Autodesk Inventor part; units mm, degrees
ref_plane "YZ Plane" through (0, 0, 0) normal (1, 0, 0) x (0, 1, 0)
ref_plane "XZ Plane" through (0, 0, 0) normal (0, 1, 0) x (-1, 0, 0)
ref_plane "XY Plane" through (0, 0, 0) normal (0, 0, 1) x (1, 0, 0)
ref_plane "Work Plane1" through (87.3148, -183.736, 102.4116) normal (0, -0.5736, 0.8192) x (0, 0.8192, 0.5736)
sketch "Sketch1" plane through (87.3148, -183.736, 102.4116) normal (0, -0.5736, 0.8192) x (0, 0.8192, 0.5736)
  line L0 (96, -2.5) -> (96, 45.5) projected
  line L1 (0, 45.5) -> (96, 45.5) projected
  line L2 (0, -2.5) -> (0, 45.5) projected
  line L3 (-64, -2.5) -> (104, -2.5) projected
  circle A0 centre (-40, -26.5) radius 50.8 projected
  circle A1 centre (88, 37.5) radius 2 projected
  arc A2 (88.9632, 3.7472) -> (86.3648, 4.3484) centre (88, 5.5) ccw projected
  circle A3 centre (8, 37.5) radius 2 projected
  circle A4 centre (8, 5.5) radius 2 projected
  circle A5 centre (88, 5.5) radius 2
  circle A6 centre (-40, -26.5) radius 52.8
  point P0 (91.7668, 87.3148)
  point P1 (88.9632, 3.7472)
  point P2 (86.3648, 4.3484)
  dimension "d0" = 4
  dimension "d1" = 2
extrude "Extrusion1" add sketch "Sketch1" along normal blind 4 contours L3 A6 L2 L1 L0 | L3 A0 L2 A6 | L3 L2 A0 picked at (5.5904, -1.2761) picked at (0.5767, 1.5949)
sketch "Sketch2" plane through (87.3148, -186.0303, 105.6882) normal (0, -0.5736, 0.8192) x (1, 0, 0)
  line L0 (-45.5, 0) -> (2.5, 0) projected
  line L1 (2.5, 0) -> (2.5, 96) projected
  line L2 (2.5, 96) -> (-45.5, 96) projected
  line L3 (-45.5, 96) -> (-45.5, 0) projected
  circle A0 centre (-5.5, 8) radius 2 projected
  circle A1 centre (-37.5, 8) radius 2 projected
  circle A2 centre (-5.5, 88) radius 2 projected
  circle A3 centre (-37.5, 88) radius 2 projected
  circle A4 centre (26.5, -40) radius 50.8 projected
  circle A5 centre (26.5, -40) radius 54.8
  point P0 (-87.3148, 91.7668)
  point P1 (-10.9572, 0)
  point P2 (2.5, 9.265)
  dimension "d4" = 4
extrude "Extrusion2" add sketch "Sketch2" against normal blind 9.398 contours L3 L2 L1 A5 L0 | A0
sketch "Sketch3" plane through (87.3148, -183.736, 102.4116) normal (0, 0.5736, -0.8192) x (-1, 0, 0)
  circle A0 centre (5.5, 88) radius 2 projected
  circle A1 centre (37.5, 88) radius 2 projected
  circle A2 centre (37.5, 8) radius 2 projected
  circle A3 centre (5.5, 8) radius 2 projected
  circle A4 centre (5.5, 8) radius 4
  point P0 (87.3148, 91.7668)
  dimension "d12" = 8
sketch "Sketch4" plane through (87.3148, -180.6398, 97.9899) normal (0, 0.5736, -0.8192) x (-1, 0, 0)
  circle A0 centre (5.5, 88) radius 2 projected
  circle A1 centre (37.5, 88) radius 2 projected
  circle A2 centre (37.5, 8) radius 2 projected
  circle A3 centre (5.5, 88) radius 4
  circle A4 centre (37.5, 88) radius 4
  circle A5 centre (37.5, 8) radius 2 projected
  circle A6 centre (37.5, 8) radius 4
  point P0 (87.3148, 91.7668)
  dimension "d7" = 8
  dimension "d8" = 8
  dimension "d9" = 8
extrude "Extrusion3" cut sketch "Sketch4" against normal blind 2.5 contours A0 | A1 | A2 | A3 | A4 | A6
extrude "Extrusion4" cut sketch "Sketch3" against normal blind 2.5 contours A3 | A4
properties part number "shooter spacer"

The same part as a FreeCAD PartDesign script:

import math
import FreeCAD as App
import Part
import Sketcher

doc = App.newDocument("Part")
body = doc.addObject("PartDesign::Body", "Body")

sketch1 = body.newObject("Sketcher::SketchObject", "Sketch")
sketch1.Placement = App.Placement(App.Vector(87.3148, -183.736, 102.4116), App.Rotation(App.Vector(0, 0.819152044, 0.573576436), App.Vector(-0.999999999, 0, 0), App.Vector(0, -0.573576436, 0.819152044), "ZXY"))
sketch1.addGeometry([
    Part.LineSegment(App.Vector(96, -2.5, 0), App.Vector(96, 45.5, 0)),
    Part.LineSegment(App.Vector(96, 45.5, 0), App.Vector(0, 45.5, 0)),
    Part.LineSegment(App.Vector(0, 45.5, 0), App.Vector(0, -2.5, 0)),
    Part.LineSegment(App.Vector(0, -2.5, 0), App.Vector(96, -2.5, 0)),
    Part.Circle(App.Vector(8, 5.5, 0), App.Vector(0, 0, 1), 2),
    Part.ArcOfCircle(Part.Circle(App.Vector(88, 5.5, 0), App.Vector(0, 0, 1), 2), math.radians(-145), math.radians(-61)),
    Part.ArcOfCircle(Part.Circle(App.Vector(88, 5.5, 0), App.Vector(0, 0, 1), 2), math.radians(-61), math.radians(215)),
    Part.Circle(App.Vector(8, 37.5, 0), App.Vector(0, 0, 1), 2),
    Part.Circle(App.Vector(88, 37.5, 0), App.Vector(0, 0, 1), 2),
], False)
sketch1.addConstraint([
    Sketcher.Constraint("Coincident", 0, 2, 1, 1),
    Sketcher.Constraint("Coincident", 1, 2, 2, 1),
    Sketcher.Constraint("Coincident", 2, 2, 3, 1),
    Sketcher.Constraint("Coincident", 3, 2, 0, 1),
    Sketcher.Constraint("Tangent", 5, 1, 6, 2),
    Sketcher.Constraint("Coincident", 6, 1, 5, 2),
    Sketcher.Constraint("Vertical", 0),
    Sketcher.Constraint("Horizontal", 1),
    Sketcher.Constraint("Vertical", 2),
    Sketcher.Constraint("Horizontal", 3),
    Sketcher.Constraint("Equal", 4, 5),
    Sketcher.Constraint("Equal", 6, 7),
    Sketcher.Constraint("Equal", 7, 8),
    Sketcher.Constraint("PointOnObject", 1, 2, -2),
    Sketcher.Constraint("Horizontal", 4, 3, 5, 3),
    Sketcher.Constraint("Horizontal", 7, 3, 8, 3),
    Sketcher.Constraint("Vertical", 4, 3, 7, 3),
    Sketcher.Constraint("Vertical", 6, 3, 8, 3),
    Sketcher.Constraint("Diameter", 4, 4.0),
    Sketcher.Constraint("DistanceX", 1, 2, 1, 1, 96.0),
    Sketcher.Constraint("DistanceY", 0, 1, 0, 2, 48.0),
    Sketcher.Constraint("DistanceX", -1, 1, 4, 3, 8.0),
    Sketcher.Constraint("DistanceX", -1, 1, 5, 3, 88.0),
    Sketcher.Constraint("DistanceY", 4, 3, 7, 3, 32.0),
    Sketcher.Constraint("DistanceY", 8, 3, 0, 2, 8.0),
    Sketcher.Constraint("DistanceY", -1, 1, 4, 3, 5.5),
    Sketcher.Constraint("DistanceX", -1, 1, 5, 1, 86.3648),
    Sketcher.Constraint("DistanceX", -1, 1, 6, 1, 88.9632),
])
pad1 = body.newObject("PartDesign::Pad", "Pad")
pad1.Profile = sketch1
pad1.Length = 4

sketch2 = body.newObject("Sketcher::SketchObject", "Sketch001")
sketch2.Placement = App.Placement(App.Vector(87.3148, -186.0303, 105.6882), App.Rotation(App.Vector(1, 0, 0), App.Vector(0, 0.819152044, 0.573576436), App.Vector(0, -0.573576436, 0.819152044), "ZXY"))
sketch2.addGeometry([
    Part.LineSegment(App.Vector(-45.5, 96, 0), App.Vector(-45.5, 0, 0)),
    Part.LineSegment(App.Vector(-45.5, 0, 0), App.Vector(-11, 0, 0)),
    Part.ArcOfCircle(Part.Circle(App.Vector(26.5, -40, 0), App.Vector(0, 0, 1), 54.8), math.radians(115.97), math.radians(133.12)),
    Part.LineSegment(App.Vector(2.5, 9.3, 0), App.Vector(2.5, 96, 0)),
    Part.LineSegment(App.Vector(2.5, 96, 0), App.Vector(-45.5, 96, 0)),
    Part.Circle(App.Vector(-37.5, 8, 0), App.Vector(0, 0, 1), 2),
    Part.Circle(App.Vector(-37.5, 88, 0), App.Vector(0, 0, 1), 2),
    Part.Circle(App.Vector(-5.5, 88, 0), App.Vector(0, 0, 1), 2),
], False)
sketch2.addConstraint([
    Sketcher.Constraint("Coincident", 0, 2, 1, 1),
    Sketcher.Constraint("Coincident", 1, 2, 2, 2),
    Sketcher.Constraint("Coincident", 2, 1, 3, 1),
    Sketcher.Constraint("Coincident", 3, 2, 4, 1),
    Sketcher.Constraint("Coincident", 4, 2, 0, 1),
    Sketcher.Constraint("Vertical", 0),
    Sketcher.Constraint("Horizontal", 1),
    Sketcher.Constraint("Vertical", 3),
    Sketcher.Constraint("Horizontal", 4),
    Sketcher.Constraint("Equal", 5, 6),
    Sketcher.Constraint("Equal", 6, 7),
    Sketcher.Constraint("PointOnObject", 0, 2, -1),
    Sketcher.Constraint("Horizontal", 6, 3, 7, 3),
    Sketcher.Constraint("Vertical", 5, 3, 6, 3),
    Sketcher.Constraint("Diameter", 5, 4.0),
    Sketcher.Constraint("Radius", 2, 54.8),
    Sketcher.Constraint("DistanceX", 4, 2, 4, 1, 48.0),
    Sketcher.Constraint("DistanceY", 0, 2, 0, 1, 96.0),
    Sketcher.Constraint("DistanceY", 2, 3, -1, 1, 40.0),
    Sketcher.Constraint("DistanceY", -1, 1, 5, 3, 8.0),
    Sketcher.Constraint("DistanceY", -1, 1, 6, 3, 88.0),
    Sketcher.Constraint("DistanceX", 5, 3, 2, 3, 64.0),
    Sketcher.Constraint("DistanceX", 6, 3, 7, 3, 32.0),
    Sketcher.Constraint("DistanceX", 0, 2, 5, 3, 8.0),
    Sketcher.Constraint("DistanceX", -1, 1, 2, 3, 26.5),
])
pad2 = body.newObject("PartDesign::Pad", "Pad001")
pad2.Profile = sketch2
pad2.Length = 9.398
pad2.Reversed = True

sketch3 = body.newObject("Sketcher::SketchObject", "Sketch002")
sketch3.Placement = App.Placement(App.Vector(87.3148, -180.6398, 97.9899), App.Rotation(App.Vector(-1, 0, 0), App.Vector(0, 0.819152044, 0.573576436), App.Vector(0, 0.573576436, -0.819152044), "ZXY"))
sketch3.addGeometry([
    Part.Circle(App.Vector(5.5, 88, 0), App.Vector(0, 0, 1), 4),
    Part.Circle(App.Vector(37.5, 88, 0), App.Vector(0, 0, 1), 4),
    Part.Circle(App.Vector(37.5, 8, 0), App.Vector(0, 0, 1), 4),
], False)
sketch3.addConstraint([
    Sketcher.Constraint("Equal", 0, 1),
    Sketcher.Constraint("Equal", 1, 2),
    Sketcher.Constraint("Horizontal", 0, 3, 1, 3),
    Sketcher.Constraint("Vertical", 1, 3, 2, 3),
    Sketcher.Constraint("Diameter", 0, 8.0),
    Sketcher.Constraint("DistanceY", -1, 1, 2, 3, 8.0),
    Sketcher.Constraint("DistanceY", -1, 1, 0, 3, 88.0),
    Sketcher.Constraint("DistanceX", 0, 3, 1, 3, 32.0),
    Sketcher.Constraint("DistanceX", -1, 1, 0, 3, 5.5),
])
pocket1 = body.newObject("PartDesign::Pocket", "Pocket")
pocket1.Profile = sketch3
pocket1.Length = 2.5

sketch4 = body.newObject("Sketcher::SketchObject", "Sketch003")
sketch4.Placement = App.Placement(App.Vector(87.3148, -183.736, 102.4116), App.Rotation(App.Vector(-1, 0, 0), App.Vector(0, 0.819152044, 0.573576436), App.Vector(0, 0.573576436, -0.819152044), "ZXY"))
sketch4.addGeometry(Part.Circle(App.Vector(5.5, 8, 0), App.Vector(0, 0, 1), 4), False)
sketch4.addConstraint([
    Sketcher.Constraint("Diameter", 0, 8.0),
    Sketcher.Constraint("DistanceY", -1, 1, 0, 3, 8.0),
    Sketcher.Constraint("DistanceX", -1, 1, 0, 3, 5.5),
])
pocket2 = body.newObject("PartDesign::Pocket", "Pocket001")
pocket2.Profile = sketch4
pocket2.Length = 2.5

doc.recompute()
